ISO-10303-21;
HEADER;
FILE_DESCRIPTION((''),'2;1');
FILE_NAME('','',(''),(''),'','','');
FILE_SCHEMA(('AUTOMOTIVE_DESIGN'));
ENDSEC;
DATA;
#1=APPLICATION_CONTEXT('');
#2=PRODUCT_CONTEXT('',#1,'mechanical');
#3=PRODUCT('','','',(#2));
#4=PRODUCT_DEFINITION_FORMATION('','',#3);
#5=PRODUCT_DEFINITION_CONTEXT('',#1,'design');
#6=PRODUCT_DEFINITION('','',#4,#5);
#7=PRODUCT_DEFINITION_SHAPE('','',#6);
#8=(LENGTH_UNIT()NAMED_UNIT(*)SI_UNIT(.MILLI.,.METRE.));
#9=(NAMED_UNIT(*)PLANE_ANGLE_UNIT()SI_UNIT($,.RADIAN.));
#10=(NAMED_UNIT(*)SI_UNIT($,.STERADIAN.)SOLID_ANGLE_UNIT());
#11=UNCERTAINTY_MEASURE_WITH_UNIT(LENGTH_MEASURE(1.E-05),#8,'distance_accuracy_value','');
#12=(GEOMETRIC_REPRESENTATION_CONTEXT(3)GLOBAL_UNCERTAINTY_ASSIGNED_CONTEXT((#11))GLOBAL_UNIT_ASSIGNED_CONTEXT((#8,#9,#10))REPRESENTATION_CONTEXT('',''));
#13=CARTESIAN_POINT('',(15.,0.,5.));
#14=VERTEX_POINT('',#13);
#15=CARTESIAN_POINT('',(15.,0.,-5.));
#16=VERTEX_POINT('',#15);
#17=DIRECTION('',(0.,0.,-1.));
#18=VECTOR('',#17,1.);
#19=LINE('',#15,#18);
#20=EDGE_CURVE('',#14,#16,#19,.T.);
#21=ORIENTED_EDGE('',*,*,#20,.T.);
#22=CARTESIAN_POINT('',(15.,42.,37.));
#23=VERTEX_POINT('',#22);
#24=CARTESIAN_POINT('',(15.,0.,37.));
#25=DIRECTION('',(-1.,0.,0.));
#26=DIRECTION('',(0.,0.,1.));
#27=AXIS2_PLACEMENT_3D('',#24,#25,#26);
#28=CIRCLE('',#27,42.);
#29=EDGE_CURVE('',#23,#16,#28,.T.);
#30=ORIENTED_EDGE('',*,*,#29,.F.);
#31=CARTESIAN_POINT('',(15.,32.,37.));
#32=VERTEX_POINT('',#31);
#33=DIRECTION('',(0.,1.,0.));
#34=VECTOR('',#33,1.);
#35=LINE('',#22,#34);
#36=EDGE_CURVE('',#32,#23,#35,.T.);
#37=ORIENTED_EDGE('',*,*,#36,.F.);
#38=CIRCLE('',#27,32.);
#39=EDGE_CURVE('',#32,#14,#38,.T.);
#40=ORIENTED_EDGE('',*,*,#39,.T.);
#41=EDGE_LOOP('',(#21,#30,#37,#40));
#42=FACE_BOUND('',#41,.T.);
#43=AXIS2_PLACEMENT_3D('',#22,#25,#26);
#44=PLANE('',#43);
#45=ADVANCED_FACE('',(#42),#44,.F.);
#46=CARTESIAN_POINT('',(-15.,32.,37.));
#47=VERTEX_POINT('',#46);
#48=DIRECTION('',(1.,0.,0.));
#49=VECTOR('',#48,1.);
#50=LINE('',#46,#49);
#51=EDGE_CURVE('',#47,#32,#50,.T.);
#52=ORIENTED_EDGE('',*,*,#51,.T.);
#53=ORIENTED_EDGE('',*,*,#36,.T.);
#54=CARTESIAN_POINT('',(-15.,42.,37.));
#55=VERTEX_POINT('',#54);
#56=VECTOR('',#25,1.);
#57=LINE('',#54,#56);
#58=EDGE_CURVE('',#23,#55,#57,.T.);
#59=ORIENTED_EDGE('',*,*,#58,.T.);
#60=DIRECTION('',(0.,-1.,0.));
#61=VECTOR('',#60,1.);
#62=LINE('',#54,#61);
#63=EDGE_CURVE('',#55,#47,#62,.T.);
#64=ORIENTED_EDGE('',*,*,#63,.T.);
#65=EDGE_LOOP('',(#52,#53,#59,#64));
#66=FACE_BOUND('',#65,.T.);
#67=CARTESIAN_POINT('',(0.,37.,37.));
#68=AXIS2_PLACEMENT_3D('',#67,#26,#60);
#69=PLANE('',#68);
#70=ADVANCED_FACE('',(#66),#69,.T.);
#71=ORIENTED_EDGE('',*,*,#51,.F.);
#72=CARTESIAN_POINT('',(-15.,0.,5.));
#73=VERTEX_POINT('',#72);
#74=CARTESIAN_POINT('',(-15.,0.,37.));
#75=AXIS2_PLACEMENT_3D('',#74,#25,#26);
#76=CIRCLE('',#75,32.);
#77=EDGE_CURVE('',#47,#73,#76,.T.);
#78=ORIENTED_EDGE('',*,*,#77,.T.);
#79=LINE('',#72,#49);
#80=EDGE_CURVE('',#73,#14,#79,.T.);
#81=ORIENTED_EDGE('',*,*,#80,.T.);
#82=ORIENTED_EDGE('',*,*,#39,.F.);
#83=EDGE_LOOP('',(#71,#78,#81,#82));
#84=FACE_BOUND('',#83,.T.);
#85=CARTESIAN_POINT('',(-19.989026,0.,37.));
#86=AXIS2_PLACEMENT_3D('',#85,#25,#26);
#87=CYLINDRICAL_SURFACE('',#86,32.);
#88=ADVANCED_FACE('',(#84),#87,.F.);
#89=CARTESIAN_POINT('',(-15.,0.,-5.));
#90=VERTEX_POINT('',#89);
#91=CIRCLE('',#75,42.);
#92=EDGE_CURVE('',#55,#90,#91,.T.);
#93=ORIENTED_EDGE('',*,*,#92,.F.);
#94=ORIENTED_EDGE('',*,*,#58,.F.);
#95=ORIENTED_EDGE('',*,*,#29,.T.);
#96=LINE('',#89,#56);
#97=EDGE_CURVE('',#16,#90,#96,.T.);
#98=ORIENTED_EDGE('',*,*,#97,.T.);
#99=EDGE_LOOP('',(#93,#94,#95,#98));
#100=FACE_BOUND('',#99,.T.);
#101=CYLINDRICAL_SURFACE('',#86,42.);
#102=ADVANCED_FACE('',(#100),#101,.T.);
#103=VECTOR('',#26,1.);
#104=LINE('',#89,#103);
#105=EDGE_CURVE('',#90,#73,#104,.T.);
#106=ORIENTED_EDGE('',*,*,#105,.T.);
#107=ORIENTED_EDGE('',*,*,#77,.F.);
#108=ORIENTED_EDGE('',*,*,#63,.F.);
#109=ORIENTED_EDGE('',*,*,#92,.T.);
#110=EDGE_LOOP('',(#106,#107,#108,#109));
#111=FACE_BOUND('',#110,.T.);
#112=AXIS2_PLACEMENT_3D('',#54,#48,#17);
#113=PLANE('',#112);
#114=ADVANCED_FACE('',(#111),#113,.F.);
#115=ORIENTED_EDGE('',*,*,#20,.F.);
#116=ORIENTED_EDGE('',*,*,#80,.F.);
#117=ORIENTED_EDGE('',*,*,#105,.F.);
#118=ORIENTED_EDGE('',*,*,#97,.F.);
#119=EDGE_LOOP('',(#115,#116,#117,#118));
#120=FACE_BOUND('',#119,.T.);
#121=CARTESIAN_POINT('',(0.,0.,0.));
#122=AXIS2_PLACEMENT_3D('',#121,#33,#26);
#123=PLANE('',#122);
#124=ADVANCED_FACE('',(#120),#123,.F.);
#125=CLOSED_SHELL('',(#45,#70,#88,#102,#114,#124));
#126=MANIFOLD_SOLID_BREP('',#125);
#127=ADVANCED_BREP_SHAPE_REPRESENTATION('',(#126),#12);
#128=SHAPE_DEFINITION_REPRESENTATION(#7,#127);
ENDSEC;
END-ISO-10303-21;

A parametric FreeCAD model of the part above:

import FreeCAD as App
import Part
import Sketcher
from FreeCAD import Vector


def add_polygon(sketch, points):
    """Adds a closed chain of lines whose ends are joined by coincident constraints."""
    first, n = sketch.GeometryCount, len(points)
    for a, b in zip(points, points[1:] + points[:1]):
        sketch.addGeometry(Part.LineSegment(App.Vector(*a, 0), App.Vector(*b, 0)), False)
    for i in range(n):
        sketch.addConstraint(Sketcher.Constraint("Coincident", first + i, 2, first + (i + 1) % n, 1))

doc = App.newDocument("Part")
params = doc.addObject("Spreadsheet::Sheet", "Params")
for row, (alias, value) in enumerate([
    ("sketch1_width", "30 mm"),
    ("sketch1_height", "10 mm"),
    ("revolution_angle", "90 deg"),
], start=1):
    params.set(f"A{row}", alias)
    params.set(f"B{row}", "=" + value)
    params.setAlias(f"B{row}", alias)

body = doc.addObject("PartDesign::Body", "Body")

# Sketch on XZ plane
sketch1 = body.newObject("Sketcher::SketchObject", "Sketch")
sketch1.AttachmentSupport = (doc.getObject("XZ_Plane"), [""])
sketch1.MapMode = "FlatFace"
add_polygon(sketch1, [(-15, -5), (-15, 5), (15, 5), (15, -5)])  # lines 0-3
sketch1.addGeometry(Part.LineSegment(Vector(-15, 37, 0), Vector(15, 37, 0)), True)  # axis
sketch1.addConstraint([
    Sketcher.Constraint("Vertical", 0),
    Sketcher.Constraint("Horizontal", 1),
    Sketcher.Constraint("Vertical", 2),
    Sketcher.Constraint("Horizontal", 3),
    Sketcher.Constraint("Horizontal", 4),
    Sketcher.Constraint("Symmetric", 0, 2, 2, 2, -1, 1),
    Sketcher.Constraint("Vertical", 3, 2, 4, 1),
    Sketcher.Constraint("Vertical", 2, 2, 4, 2),
    Sketcher.Constraint("DistanceX", 1, 1, 1, 2, 30.0),
    Sketcher.Constraint("DistanceY", 0, 1, 0, 2, 10.0),
    Sketcher.Constraint("DistanceY", -1, 1, 4, 1, 37.0),
])
sketch1.setExpression("Constraints[12]", "Params.sketch1_width")
sketch1.setExpression("Constraints[13]", "Params.sketch1_height")
revolution = body.newObject("PartDesign::Revolution", "Revolution")
revolution.Profile = sketch1
revolution.ReferenceAxis = (sketch1, ["Axis0"])
revolution.setExpression("Angle", "Params.revolution_angle")

doc.recompute()
